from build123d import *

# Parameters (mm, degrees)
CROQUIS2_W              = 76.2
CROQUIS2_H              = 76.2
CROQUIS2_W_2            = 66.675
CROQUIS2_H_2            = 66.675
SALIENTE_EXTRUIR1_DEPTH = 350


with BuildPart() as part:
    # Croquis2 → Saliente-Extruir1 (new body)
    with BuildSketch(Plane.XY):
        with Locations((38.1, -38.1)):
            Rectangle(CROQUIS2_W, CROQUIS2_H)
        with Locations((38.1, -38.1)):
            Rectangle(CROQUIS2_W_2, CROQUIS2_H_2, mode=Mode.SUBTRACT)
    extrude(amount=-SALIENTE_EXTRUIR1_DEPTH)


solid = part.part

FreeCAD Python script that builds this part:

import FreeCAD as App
import Part
import Sketcher
from FreeCAD import Vector
Q = App.Units.Quantity

doc = App.newDocument("Part")
body = doc.addObject("PartDesign::Body", "Body")

# Sketch on XY plane
sketch1 = body.newObject("Sketcher::SketchObject", "Sketch")
sketch1.AttachmentSupport = (doc.getObject("XY_Plane"), [""])
sketch1.MapMode = "FlatFace"
sketch1.addGeometry([
    Part.LineSegment(Vector(0, 0, 0), Vector(0, -76, 0)),  # 0
    Part.LineSegment(Vector(0, -76, 0), Vector(76, -76, 0)),  # 1
    Part.LineSegment(Vector(76, -76, 0), Vector(76, 0, 0)),  # 2
    Part.LineSegment(Vector(76, 0, 0), Vector(0, 0, 0)),  # 3
    Part.LineSegment(Vector(71, -71, 0), Vector(5, -71, 0)),  # 4
    Part.LineSegment(Vector(5, -71, 0), Vector(5, -5, 0)),  # 5
    Part.LineSegment(Vector(5, -5, 0), Vector(71, -5, 0)),  # 6
    Part.LineSegment(Vector(71, -5, 0), Vector(71, -71, 0)),  # 7
], False)
sketch1.addConstraint([
    Sketcher.Constraint("Coincident", 0, 2, 1, 1),
    Sketcher.Constraint("Coincident", 1, 2, 2, 1),
    Sketcher.Constraint("Coincident", 2, 2, 3, 1),
    Sketcher.Constraint("Coincident", 3, 2, 0, 1),
    Sketcher.Constraint("Coincident", 4, 2, 5, 1),
    Sketcher.Constraint("Coincident", 5, 2, 6, 1),
    Sketcher.Constraint("Coincident", 6, 2, 7, 1),
    Sketcher.Constraint("Coincident", 7, 2, 4, 1),
    Sketcher.Constraint("Vertical", 0),
    Sketcher.Constraint("Horizontal", 1),
    Sketcher.Constraint("Vertical", 2),
    Sketcher.Constraint("Horizontal", 3),
    Sketcher.Constraint("Horizontal", 4),
    Sketcher.Constraint("Vertical", 5),
    Sketcher.Constraint("Horizontal", 6),
    Sketcher.Constraint("Vertical", 7),
    Sketcher.Constraint("Coincident", 3, 2, -1, 1),
    Sketcher.Constraint("Equal", 3, 0),
    Sketcher.Constraint("Equal", 6, 5),
    Sketcher.Constraint("DistanceX", 1, 1, 1, 2, Q("3 in")),
    Sketcher.Constraint("DistanceX", 4, 2, 4, 1, Q("2.625 in")),
    Sketcher.Constraint("DistanceX", -1, 1, 4, 2, Q("0.1875 in")),
    Sketcher.Constraint("DistanceY", 4, 2, -1, 1, Q("2.8125 in")),
])
pad1 = body.newObject("PartDesign::Pad", "Pad")
pad1.Profile = sketch1
pad1.Length = 350
pad1.Reversed = True

doc.recompute()
